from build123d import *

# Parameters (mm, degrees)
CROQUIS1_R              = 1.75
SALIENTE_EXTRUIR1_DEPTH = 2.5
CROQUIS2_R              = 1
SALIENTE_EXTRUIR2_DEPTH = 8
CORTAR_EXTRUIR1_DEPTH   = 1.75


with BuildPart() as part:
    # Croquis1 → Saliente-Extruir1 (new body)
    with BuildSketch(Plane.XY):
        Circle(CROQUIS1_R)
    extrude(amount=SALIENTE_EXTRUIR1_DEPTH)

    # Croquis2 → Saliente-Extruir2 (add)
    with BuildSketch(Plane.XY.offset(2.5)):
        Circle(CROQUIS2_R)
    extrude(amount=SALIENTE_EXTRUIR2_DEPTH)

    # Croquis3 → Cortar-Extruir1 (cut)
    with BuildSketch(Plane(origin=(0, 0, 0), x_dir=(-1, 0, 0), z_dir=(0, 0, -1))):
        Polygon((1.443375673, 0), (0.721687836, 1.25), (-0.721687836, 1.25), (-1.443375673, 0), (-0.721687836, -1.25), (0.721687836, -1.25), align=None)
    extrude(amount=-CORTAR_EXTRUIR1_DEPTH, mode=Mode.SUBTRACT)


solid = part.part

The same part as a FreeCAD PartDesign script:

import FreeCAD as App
import Part
import Sketcher
from FreeCAD import Vector
Q = App.Units.Quantity


def add_polygon(sketch, points):
    """Adds a closed chain of lines whose ends are joined by coincident constraints."""
    first, n = sketch.GeometryCount, len(points)
    for a, b in zip(points, points[1:] + points[:1]):
        sketch.addGeometry(Part.LineSegment(App.Vector(*a, 0), App.Vector(*b, 0)), False)
    for i in range(n):
        sketch.addConstraint(Sketcher.Constraint("Coincident", first + i, 2, first + (i + 1) % n, 1))

doc = App.newDocument("Part")
body = doc.addObject("PartDesign::Body", "Body")

sketch1 = body.newObject("Sketcher::SketchObject", "Sketch")
sketch1.AttachmentSupport = (doc.getObject("XY_Plane"), [""])
sketch1.MapMode = "FlatFace"
sketch1.addGeometry(Part.Circle(Vector(0, 0, 0), Vector(0, 0, 1), 1.8), False)
sketch1.addConstraint(Sketcher.Constraint("Coincident", 0, 3, -1, 1))
sketch1.addConstraint(Sketcher.Constraint("Diameter", 0, 3.5))
pad1 = body.newObject("PartDesign::Pad", "Pad")
pad1.Profile = sketch1
pad1.Length = 2.5

sketch2 = body.newObject("Sketcher::SketchObject", "Sketch001")
sketch2.AttachmentSupport = (doc.getObject("XY_Plane"), [""])
sketch2.MapMode = "FlatFace"
sketch2.AttachmentOffset = App.Placement(Vector(0, 0, 2.5), App.Rotation())
sketch2.addGeometry(Part.Circle(Vector(0, 0, 0), Vector(0, 0, 1), 1), False)
sketch2.addConstraint(Sketcher.Constraint("Coincident", 0, 3, -1, 1))
sketch2.addConstraint(Sketcher.Constraint("Diameter", 0, 2.0))
pad2 = body.newObject("PartDesign::Pad", "Pad001")
pad2.Profile = sketch2
pad2.Length = 8

sketch3 = body.newObject("Sketcher::SketchObject", "Sketch002")
sketch3.AttachmentSupport = (doc.getObject("XY_Plane"), [""])
sketch3.MapMode = "FlatFace"
add_polygon(sketch3, [(-1.4, 0), (-0.7, 1.2), (0.7, 1.2), (1.4, 0), (0.7, -1.2), (-0.7, -1.2)])
sketch3.addConstraint(Sketcher.Constraint("Horizontal", 1))
sketch3.addConstraint(Sketcher.Constraint("Horizontal", 4))
sketch3.addConstraint(Sketcher.Constraint("Symmetric", 0, 2, 3, 2, -1, 1))
sketch3.addConstraint(Sketcher.Constraint("Symmetric", 2, 2, 5, 2, -1, 1))
sketch3.addConstraint(Sketcher.Constraint("PointOnObject", 2, 2, -1))
sketch3.addConstraint(Sketcher.Constraint("Parallel", 2, 5))
sketch3.addConstraint(Sketcher.Constraint("Vertical", 1, 2, 3, 2))
sketch3.addConstraint(Sketcher.Constraint("Angle", 0, Q("60 deg")))
sketch3.addConstraint(Sketcher.Constraint("DistanceY", 3, 2, 1, 2, 2.5))
sketch3.addConstraint(Sketcher.Constraint("DistanceX", 1, 1, 1, 2, 1.443376))
pocket1 = body.newObject("PartDesign::Pocket", "Pocket")
pocket1.Profile = sketch3
pocket1.Length = 1.75
pocket1.Reversed = True

doc.recompute()
